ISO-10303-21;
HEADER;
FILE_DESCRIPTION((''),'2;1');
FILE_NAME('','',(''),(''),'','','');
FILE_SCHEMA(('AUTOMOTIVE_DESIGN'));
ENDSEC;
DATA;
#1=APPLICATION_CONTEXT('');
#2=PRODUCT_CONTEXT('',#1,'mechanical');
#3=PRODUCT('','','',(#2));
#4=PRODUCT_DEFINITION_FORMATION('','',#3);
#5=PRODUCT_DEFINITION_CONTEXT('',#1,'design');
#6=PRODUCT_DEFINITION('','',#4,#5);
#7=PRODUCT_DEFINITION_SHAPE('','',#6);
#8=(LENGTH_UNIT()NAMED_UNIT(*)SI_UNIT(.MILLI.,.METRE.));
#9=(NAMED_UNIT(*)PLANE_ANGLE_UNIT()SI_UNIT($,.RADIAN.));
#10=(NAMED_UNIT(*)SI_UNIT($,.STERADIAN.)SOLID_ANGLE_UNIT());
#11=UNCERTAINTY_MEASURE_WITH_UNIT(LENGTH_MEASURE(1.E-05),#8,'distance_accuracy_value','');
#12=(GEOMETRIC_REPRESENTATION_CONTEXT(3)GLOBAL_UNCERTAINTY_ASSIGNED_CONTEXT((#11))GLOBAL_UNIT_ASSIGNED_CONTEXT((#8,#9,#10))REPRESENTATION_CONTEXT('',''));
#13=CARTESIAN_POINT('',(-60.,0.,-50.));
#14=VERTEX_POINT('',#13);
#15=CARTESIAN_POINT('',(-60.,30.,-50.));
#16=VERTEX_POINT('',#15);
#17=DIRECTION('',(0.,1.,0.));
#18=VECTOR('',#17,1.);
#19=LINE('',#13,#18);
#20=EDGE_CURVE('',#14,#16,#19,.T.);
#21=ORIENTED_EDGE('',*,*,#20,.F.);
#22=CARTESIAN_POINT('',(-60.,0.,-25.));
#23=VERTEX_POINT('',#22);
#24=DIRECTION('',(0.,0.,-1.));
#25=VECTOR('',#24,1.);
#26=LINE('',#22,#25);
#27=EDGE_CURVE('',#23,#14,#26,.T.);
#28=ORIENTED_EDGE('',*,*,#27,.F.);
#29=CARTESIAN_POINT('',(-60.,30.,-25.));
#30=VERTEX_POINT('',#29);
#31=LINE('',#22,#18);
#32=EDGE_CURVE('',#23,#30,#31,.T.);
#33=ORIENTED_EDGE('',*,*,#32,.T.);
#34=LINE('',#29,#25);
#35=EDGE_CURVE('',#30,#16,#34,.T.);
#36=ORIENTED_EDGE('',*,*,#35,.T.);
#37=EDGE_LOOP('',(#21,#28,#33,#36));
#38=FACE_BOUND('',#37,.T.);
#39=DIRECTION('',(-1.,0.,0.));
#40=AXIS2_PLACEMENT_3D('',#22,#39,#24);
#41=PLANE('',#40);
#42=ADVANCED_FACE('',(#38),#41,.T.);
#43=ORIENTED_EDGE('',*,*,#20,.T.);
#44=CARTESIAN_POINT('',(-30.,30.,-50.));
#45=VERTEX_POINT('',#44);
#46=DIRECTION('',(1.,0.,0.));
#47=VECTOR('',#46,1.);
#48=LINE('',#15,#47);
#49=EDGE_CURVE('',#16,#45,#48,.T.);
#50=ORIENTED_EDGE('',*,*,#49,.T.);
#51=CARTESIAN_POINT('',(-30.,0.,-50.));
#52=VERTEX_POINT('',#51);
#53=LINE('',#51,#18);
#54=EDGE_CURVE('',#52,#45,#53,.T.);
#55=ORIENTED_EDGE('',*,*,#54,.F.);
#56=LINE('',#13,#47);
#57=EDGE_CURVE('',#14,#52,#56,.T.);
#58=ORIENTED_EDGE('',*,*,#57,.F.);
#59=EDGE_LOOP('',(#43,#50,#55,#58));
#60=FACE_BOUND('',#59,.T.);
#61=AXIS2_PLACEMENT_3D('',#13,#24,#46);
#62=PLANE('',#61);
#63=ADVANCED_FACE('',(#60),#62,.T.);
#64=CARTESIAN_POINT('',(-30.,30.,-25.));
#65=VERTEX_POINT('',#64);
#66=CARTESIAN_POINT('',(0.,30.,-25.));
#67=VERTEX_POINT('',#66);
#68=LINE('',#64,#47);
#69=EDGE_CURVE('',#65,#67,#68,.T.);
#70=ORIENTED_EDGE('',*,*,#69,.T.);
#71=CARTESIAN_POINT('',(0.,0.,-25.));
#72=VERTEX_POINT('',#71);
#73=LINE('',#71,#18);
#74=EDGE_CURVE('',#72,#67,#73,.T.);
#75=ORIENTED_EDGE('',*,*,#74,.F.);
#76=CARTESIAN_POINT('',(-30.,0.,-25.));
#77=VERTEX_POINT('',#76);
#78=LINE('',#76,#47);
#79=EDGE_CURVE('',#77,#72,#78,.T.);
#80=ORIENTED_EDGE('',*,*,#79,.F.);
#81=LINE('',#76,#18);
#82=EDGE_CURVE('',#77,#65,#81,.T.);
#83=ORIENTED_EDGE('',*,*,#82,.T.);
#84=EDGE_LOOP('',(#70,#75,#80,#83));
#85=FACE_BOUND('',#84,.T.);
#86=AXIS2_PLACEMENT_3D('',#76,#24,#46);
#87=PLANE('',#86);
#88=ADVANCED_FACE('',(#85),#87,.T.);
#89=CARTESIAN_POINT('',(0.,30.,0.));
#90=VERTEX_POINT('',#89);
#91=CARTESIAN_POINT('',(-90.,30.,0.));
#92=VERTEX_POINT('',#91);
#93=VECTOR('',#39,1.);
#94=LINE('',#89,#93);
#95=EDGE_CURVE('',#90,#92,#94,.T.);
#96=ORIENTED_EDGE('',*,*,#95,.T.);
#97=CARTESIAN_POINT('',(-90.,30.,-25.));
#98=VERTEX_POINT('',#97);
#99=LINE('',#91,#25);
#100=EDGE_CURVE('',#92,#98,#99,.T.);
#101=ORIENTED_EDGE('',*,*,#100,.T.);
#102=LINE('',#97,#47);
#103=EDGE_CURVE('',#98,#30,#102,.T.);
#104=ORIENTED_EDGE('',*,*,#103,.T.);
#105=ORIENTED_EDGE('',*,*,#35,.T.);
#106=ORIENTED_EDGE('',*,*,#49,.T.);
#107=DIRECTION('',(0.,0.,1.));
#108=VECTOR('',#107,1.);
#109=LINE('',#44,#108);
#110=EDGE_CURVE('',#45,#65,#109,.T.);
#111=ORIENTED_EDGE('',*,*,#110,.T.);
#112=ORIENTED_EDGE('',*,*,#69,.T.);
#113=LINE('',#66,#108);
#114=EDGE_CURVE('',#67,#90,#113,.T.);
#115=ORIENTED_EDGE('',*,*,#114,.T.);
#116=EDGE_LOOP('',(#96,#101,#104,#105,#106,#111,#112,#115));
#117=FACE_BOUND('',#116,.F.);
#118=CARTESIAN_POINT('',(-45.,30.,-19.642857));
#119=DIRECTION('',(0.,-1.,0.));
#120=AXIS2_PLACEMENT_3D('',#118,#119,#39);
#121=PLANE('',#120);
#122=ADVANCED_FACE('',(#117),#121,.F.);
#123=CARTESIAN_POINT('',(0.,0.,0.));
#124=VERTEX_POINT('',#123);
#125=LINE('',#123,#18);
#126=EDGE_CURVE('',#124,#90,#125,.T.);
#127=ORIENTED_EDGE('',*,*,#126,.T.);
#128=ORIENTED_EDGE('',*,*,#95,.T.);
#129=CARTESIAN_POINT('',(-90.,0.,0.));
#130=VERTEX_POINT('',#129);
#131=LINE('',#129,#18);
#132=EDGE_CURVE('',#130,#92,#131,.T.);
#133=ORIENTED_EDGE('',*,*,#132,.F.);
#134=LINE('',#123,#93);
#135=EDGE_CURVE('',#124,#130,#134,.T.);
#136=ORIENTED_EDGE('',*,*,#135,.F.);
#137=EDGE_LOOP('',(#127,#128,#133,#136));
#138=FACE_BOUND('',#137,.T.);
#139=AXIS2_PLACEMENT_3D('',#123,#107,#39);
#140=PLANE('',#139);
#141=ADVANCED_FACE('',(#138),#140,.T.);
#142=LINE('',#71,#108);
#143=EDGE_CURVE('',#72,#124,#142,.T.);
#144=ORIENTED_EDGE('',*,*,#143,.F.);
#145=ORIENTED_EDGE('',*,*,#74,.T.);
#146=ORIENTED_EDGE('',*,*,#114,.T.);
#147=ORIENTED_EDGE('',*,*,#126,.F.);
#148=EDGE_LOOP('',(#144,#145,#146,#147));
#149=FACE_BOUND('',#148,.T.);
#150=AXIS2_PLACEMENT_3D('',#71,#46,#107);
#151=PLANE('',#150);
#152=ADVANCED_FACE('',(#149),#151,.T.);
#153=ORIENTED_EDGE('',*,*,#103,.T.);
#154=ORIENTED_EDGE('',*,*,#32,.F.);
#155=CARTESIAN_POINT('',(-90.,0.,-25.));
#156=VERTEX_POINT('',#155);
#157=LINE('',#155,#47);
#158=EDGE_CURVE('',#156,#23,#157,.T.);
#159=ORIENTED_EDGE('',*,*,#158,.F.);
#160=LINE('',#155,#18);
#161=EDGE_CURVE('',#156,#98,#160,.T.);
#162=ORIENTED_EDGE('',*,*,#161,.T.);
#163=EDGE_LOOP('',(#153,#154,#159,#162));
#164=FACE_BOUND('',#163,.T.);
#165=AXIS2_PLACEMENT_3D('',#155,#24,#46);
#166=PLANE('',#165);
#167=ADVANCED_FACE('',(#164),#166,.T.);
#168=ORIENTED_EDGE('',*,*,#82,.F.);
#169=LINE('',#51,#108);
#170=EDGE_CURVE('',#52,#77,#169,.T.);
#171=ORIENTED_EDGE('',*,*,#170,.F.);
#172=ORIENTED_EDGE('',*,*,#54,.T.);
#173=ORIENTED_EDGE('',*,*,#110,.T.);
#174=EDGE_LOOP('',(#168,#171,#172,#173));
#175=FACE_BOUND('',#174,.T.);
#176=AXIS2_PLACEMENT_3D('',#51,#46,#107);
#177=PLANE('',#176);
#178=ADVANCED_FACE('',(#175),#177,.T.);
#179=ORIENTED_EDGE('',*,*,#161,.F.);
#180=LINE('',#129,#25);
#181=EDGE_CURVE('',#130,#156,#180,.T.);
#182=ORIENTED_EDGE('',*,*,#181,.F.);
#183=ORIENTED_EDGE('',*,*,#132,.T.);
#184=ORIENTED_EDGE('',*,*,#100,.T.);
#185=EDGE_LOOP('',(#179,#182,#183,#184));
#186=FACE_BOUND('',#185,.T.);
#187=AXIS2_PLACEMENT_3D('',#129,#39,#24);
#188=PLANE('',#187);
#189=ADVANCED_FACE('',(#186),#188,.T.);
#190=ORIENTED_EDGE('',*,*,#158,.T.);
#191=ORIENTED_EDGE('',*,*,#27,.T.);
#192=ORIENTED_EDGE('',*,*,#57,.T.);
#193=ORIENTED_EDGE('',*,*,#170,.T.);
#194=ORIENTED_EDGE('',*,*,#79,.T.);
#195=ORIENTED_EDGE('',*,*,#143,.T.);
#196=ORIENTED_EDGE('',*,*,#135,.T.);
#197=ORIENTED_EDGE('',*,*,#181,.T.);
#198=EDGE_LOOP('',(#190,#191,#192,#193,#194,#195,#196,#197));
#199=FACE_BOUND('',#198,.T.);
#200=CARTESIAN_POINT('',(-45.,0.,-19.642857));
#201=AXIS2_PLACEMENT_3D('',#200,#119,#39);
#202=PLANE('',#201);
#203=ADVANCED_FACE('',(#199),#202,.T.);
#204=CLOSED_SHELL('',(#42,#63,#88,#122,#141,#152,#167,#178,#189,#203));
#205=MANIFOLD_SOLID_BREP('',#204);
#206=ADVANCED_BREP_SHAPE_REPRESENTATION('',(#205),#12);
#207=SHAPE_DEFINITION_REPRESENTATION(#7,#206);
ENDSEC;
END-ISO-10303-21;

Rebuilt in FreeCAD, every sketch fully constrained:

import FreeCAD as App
import Part
import Sketcher
from FreeCAD import Vector
Q = App.Units.Quantity

doc = App.newDocument("Part")
body = doc.addObject("PartDesign::Body", "Body")

sketch1 = body.newObject("Sketcher::SketchObject", "Sketch")
sketch1.AttachmentSupport = (doc.getObject("XZ_Plane"), [""])
sketch1.MapMode = "FlatFace"
sketch1.addGeometry([
    Part.LineSegment(Vector(-90, 0, 0), Vector(0, 0, 0)),
    Part.LineSegment(Vector(0, 0, 0), Vector(0, -25, 0)),
    Part.LineSegment(Vector(0, -25, 0), Vector(-30, -25, 0)),
    Part.LineSegment(Vector(-30, -25, 0), Vector(-30, -50, 0)),
    Part.LineSegment(Vector(-30, -50, 0), Vector(-60, -50, 0)),
    Part.LineSegment(Vector(-60, -50, 0), Vector(-60, -25, 0)),
    Part.LineSegment(Vector(-60, -25, 0), Vector(-90, -25, 0)),
    Part.LineSegment(Vector(-90, -25, 0), Vector(-90, 0, 0)),
], False)
sketch1.addConstraint([
    Sketcher.Constraint("Coincident", 0, 2, 1, 1),
    Sketcher.Constraint("Coincident", 1, 2, 2, 1),
    Sketcher.Constraint("Coincident", 2, 2, 3, 1),
    Sketcher.Constraint("Coincident", 3, 2, 4, 1),
    Sketcher.Constraint("Coincident", 4, 2, 5, 1),
    Sketcher.Constraint("Coincident", 5, 2, 6, 1),
    Sketcher.Constraint("Coincident", 6, 2, 7, 1),
    Sketcher.Constraint("Coincident", 7, 2, 0, 1),
    Sketcher.Constraint("Horizontal", 0),
    Sketcher.Constraint("Vertical", 1),
    Sketcher.Constraint("Horizontal", 2),
    Sketcher.Constraint("Vertical", 3),
    Sketcher.Constraint("Horizontal", 4),
    Sketcher.Constraint("Vertical", 5),
    Sketcher.Constraint("Horizontal", 6),
    Sketcher.Constraint("Vertical", 7),
    Sketcher.Constraint("Coincident", 0, 2, -1, 1),
    Sketcher.Constraint("Horizontal", 2, 2, 5, 2),
    Sketcher.Constraint("Equal", 2, 4),
    Sketcher.Constraint("Equal", 4, 6),
    Sketcher.Constraint("Equal", 1, 3),
    Sketcher.Constraint("DistanceX", 0, 1, 0, 2, Q("90 mm")),
    Sketcher.Constraint("DistanceY", 1, 2, 1, 1, Q("25 mm")),
])
pad1 = body.newObject("PartDesign::Pad", "Pad")
pad1.Profile = sketch1
pad1.Length = 30
pad1.Reversed = True

doc.recompute()
